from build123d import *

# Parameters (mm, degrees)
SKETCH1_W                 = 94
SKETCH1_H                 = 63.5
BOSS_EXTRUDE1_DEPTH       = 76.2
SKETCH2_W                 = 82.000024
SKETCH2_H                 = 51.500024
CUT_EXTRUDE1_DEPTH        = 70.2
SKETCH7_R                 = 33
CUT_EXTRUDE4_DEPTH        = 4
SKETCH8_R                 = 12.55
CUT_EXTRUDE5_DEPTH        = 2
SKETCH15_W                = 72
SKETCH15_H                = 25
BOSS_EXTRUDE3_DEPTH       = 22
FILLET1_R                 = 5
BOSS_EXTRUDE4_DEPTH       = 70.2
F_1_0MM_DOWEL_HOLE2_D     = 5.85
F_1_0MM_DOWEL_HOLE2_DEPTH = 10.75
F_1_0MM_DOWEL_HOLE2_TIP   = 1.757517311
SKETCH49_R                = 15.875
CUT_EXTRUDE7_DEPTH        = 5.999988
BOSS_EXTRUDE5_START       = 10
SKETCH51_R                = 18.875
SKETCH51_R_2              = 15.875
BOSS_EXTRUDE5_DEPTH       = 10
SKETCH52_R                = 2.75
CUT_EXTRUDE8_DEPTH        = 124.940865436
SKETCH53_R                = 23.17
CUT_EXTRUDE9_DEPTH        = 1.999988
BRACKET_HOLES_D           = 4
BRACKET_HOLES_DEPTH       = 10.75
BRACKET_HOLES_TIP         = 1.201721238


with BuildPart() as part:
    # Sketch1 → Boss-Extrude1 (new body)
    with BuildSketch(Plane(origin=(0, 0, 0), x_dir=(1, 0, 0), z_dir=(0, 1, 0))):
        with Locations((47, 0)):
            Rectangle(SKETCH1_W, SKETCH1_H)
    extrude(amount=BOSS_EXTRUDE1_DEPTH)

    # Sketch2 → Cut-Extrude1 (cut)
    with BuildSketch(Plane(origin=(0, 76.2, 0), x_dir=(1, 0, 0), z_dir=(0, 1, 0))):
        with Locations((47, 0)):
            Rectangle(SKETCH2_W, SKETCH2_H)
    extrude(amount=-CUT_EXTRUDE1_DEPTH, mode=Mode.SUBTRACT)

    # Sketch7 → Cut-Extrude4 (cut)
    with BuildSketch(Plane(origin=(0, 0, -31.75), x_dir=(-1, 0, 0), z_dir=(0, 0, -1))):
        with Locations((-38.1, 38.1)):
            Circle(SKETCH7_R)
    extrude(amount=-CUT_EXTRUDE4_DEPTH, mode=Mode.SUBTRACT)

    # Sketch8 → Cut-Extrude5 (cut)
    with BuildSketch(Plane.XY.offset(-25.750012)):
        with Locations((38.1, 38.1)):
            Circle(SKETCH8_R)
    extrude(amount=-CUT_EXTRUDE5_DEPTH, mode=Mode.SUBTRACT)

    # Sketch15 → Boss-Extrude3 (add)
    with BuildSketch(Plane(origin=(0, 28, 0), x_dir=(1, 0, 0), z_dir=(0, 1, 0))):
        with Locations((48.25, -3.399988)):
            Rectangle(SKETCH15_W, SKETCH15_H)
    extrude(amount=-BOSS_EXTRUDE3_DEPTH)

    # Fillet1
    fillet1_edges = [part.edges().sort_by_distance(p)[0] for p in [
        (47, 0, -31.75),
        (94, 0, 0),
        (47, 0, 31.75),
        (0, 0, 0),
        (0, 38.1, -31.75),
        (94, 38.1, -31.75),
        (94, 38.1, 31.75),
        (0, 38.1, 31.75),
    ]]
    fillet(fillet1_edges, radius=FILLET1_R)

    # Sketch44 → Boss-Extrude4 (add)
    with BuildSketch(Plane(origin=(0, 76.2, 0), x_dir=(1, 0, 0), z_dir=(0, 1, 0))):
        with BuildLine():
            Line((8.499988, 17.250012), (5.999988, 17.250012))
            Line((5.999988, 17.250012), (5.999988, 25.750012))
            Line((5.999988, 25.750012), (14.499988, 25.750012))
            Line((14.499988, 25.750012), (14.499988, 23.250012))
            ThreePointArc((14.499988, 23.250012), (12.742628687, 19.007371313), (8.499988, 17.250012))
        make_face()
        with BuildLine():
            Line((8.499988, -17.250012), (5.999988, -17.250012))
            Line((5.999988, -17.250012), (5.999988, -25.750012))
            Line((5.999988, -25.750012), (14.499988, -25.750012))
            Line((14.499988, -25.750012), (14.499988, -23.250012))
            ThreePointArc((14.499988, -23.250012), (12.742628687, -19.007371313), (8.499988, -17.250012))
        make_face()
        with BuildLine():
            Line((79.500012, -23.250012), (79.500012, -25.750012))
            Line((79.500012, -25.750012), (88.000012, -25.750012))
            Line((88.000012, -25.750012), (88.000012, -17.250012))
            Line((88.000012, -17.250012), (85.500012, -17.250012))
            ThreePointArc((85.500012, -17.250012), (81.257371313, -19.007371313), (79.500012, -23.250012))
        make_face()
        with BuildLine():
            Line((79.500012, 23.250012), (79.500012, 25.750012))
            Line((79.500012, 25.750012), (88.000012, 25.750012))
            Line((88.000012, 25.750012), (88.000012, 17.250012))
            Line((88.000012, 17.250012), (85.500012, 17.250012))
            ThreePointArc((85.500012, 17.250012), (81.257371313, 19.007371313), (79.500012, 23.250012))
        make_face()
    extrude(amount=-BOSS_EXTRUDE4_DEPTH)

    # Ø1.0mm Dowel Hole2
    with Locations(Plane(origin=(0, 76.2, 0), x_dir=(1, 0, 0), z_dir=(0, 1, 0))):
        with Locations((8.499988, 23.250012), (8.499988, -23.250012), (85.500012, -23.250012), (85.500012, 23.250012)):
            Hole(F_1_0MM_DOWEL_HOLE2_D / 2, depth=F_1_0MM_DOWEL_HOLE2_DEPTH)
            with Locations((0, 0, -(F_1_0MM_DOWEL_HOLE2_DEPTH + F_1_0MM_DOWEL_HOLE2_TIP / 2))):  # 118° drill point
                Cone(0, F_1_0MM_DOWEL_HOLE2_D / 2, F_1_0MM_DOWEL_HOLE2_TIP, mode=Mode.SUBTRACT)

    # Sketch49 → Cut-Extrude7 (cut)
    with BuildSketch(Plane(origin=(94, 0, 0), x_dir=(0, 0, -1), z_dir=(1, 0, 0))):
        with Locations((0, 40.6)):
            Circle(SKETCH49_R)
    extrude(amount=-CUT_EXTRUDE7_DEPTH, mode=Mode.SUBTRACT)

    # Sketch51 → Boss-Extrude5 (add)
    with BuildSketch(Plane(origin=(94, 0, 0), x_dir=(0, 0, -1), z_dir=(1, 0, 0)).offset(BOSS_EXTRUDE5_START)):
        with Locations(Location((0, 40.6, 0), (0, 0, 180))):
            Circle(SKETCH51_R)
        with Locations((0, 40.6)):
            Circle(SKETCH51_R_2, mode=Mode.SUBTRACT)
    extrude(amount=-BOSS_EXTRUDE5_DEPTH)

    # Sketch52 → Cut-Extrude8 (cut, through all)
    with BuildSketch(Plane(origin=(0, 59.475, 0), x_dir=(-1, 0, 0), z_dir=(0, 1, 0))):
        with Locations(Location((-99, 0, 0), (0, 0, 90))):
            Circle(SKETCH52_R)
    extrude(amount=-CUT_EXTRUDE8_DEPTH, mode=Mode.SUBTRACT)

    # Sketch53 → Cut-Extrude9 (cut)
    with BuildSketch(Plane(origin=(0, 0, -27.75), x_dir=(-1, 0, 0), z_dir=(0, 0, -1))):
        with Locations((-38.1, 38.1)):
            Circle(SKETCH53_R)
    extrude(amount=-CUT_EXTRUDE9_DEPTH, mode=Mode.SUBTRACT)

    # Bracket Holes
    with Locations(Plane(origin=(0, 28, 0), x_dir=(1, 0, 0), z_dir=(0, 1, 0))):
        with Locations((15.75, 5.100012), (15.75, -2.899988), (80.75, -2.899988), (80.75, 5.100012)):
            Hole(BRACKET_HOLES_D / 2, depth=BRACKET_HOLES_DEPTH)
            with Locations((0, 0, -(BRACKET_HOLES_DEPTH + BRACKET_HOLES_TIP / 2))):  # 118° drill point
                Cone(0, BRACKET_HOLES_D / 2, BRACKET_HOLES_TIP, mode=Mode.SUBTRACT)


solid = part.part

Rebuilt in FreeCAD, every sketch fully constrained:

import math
import FreeCAD as App
import Part
import Sketcher
from FreeCAD import Vector


def edges_at(feature, points):
    """Names of the edges that pass closest to the given points."""
    edges = feature.Shape.Edges
    near = lambda p: min(range(len(edges)), key=lambda i: edges[i].distToShape(Part.Vertex(*p))[0])
    return sorted({f"Edge{near(p) + 1}" for p in points})


def add_polygon(sketch, points):
    """Adds a closed chain of lines whose ends are joined by coincident constraints."""
    first, n = sketch.GeometryCount, len(points)
    for a, b in zip(points, points[1:] + points[:1]):
        sketch.addGeometry(Part.LineSegment(App.Vector(*a, 0), App.Vector(*b, 0)), False)
    for i in range(n):
        sketch.addConstraint(Sketcher.Constraint("Coincident", first + i, 2, first + (i + 1) % n, 1))

doc = App.newDocument("Part")
body = doc.addObject("PartDesign::Body", "Body")

# Sketch on XZ plane
sketch1 = doc.addObject("Sketcher::SketchObject", "Sketch")
body.addObject(sketch1)
sketch1.AttachmentSupport = (doc.XZ_Plane, [""])
sketch1.MapMode = "FlatFace"
add_polygon(sketch1, [(0, -31.75), (0, 31.75), (94, 31.75), (94, -31.75)])  # lines 0-3
sketch1.addConstraint(Sketcher.Constraint("Vertical", 0))
sketch1.addConstraint(Sketcher.Constraint("Horizontal", 1))
sketch1.addConstraint(Sketcher.Constraint("Vertical", 2))
sketch1.addConstraint(Sketcher.Constraint("Horizontal", 3))
sketch1.addConstraint(Sketcher.Constraint("Symmetric", 0, 2, 3, 2, -1, 1))
sketch1.addConstraint(Sketcher.Constraint("DistanceX", 1, 1, 1, 2, 94.0))
sketch1.addConstraint(Sketcher.Constraint("DistanceY", 0, 1, 0, 2, 63.5))
pad1 = doc.addObject("PartDesign::Pad", "Pad")
body.addObject(pad1)
pad1.Profile = sketch1
pad1.Length = 76.2
pad1.Reversed = True

# Sketch on XZ plane
sketch2 = doc.addObject("Sketcher::SketchObject", "Sketch001")
body.addObject(sketch2)
sketch2.AttachmentSupport = (doc.XZ_Plane, [""])
sketch2.MapMode = "FlatFace"
sketch2.AttachmentOffset = App.Placement(Vector(0, 0, -76.2), App.Rotation())
add_polygon(sketch2, [(5.999988, -25.750012), (5.999988, 25.750012), (88.000012, 25.750012), (88.000012, -25.750012)])  # lines 0-3
sketch2.addConstraint(Sketcher.Constraint("Vertical", 0))
sketch2.addConstraint(Sketcher.Constraint("Horizontal", 1))
sketch2.addConstraint(Sketcher.Constraint("Vertical", 2))
sketch2.addConstraint(Sketcher.Constraint("Horizontal", 3))
sketch2.addConstraint(Sketcher.Constraint("DistanceX", 1, 1, 1, 2, 82.000024))
sketch2.addConstraint(Sketcher.Constraint("DistanceY", 0, 1, 0, 2, 51.500024))
sketch2.addConstraint(Sketcher.Constraint("DistanceX", -1, 1, 1, 2, 88.000012))
sketch2.addConstraint(Sketcher.Constraint("DistanceY", -1, 1, 0, 2, 25.750012))
pocket1 = doc.addObject("PartDesign::Pocket", "Pocket")
body.addObject(pocket1)
pocket1.Profile = sketch2
pocket1.Length = 70.2
pocket1.Reversed = True

# Sketch on XY plane
sketch3 = doc.addObject("Sketcher::SketchObject", "Sketch002")
body.addObject(sketch3)
sketch3.AttachmentSupport = (doc.XY_Plane, [""])
sketch3.MapMode = "FlatFace"
sketch3.AttachmentOffset = App.Placement(Vector(0, 0, -31.75), App.Rotation())
sketch3.addGeometry(Part.Circle(Vector(38.1, 38.1, 0), Vector(0, 0, 1), 33), False)
sketch3.addConstraint(Sketcher.Constraint("Diameter", 0, 66.0))
sketch3.addConstraint(Sketcher.Constraint("DistanceX", -1, 1, 0, 3, 38.1))
sketch3.addConstraint(Sketcher.Constraint("DistanceY", -1, 1, 0, 3, 38.1))
pocket2 = doc.addObject("PartDesign::Pocket", "Pocket001")
body.addObject(pocket2)
pocket2.Profile = sketch3
pocket2.Length = 4
pocket2.Reversed = True

# Sketch on XY plane
sketch4 = doc.addObject("Sketcher::SketchObject", "Sketch003")
body.addObject(sketch4)
sketch4.AttachmentSupport = (doc.XY_Plane, [""])
sketch4.MapMode = "FlatFace"
sketch4.AttachmentOffset = App.Placement(Vector(0, 0, -25.750012), App.Rotation())
sketch4.addGeometry(Part.Circle(Vector(38.1, 38.1, 0), Vector(0, 0, 1), 12.55), False)
sketch4.addConstraint(Sketcher.Constraint("Diameter", 0, 25.1))
sketch4.addConstraint(Sketcher.Constraint("DistanceX", -1, 1, 0, 3, 38.1))
sketch4.addConstraint(Sketcher.Constraint("DistanceY", -1, 1, 0, 3, 38.1))
pocket3 = doc.addObject("PartDesign::Pocket", "Pocket002")
body.addObject(pocket3)
pocket3.Profile = sketch4
pocket3.Length = 2

# Sketch on XZ plane
sketch5 = doc.addObject("Sketcher::SketchObject", "Sketch004")
body.addObject(sketch5)
sketch5.AttachmentSupport = (doc.XZ_Plane, [""])
sketch5.MapMode = "FlatFace"
sketch5.AttachmentOffset = App.Placement(Vector(0, 0, -28), App.Rotation())
add_polygon(sketch5, [(12.25, -9.100012), (12.25, 15.899988), (84.25, 15.899988), (84.25, -9.100012)])  # lines 0-3
sketch5.addConstraint(Sketcher.Constraint("Vertical", 0))
sketch5.addConstraint(Sketcher.Constraint("Horizontal", 1))
sketch5.addConstraint(Sketcher.Constraint("Vertical", 2))
sketch5.addConstraint(Sketcher.Constraint("Horizontal", 3))
sketch5.addConstraint(Sketcher.Constraint("DistanceX", 1, 1, 1, 2, 72.0))
sketch5.addConstraint(Sketcher.Constraint("DistanceY", 0, 1, 0, 2, 25.0))
sketch5.addConstraint(Sketcher.Constraint("DistanceX", -1, 1, 0, 2, 12.25))
sketch5.addConstraint(Sketcher.Constraint("DistanceY", -1, 1, 0, 2, 15.899988))
pad2 = doc.addObject("PartDesign::Pad", "Pad001")
body.addObject(pad2)
pad2.Profile = sketch5
pad2.Length = 22
doc.recompute()

fillet = doc.addObject("PartDesign::Fillet", "Fillet")
body.addObject(fillet)
fillet.Base = (pad2, edges_at(pad2, [
    (47, 0, -31.75),
    (94, 0, 0),
    (47, 0, 31.75),
    (0, 0, 0),
    (0, 38.1, -31.75),
    (94, 38.1, -31.75),
    (94, 38.1, 31.75),
    (0, 38.1, 31.75),
]))
fillet.Radius = 5

# Sketch on XZ plane
sketch6 = doc.addObject("Sketcher::SketchObject", "Sketch005")
body.addObject(sketch6)
sketch6.AttachmentSupport = (doc.XZ_Plane, [""])
sketch6.MapMode = "FlatFace"
sketch6.AttachmentOffset = App.Placement(Vector(0, 0, -76.2), App.Rotation())
sketch6.addGeometry(Part.LineSegment(Vector(5.999988, -17.250012, 0), Vector(8.499988, -17.250012, 0)), False)
sketch6.addGeometry(Part.ArcOfCircle(Part.Circle(Vector(8.499988, -23.250012, 0), Vector(0, 0, 1), 6), math.radians(0), math.radians(90)), False)
sketch6.addGeometry(Part.LineSegment(Vector(14.499988, -23.250012, 0), Vector(14.499988, -25.750012, 0)), False)
sketch6.addGeometry(Part.LineSegment(Vector(14.499988, -25.750012, 0), Vector(5.999988, -25.750012, 0)), False)
sketch6.addGeometry(Part.LineSegment(Vector(5.999988, -25.750012, 0), Vector(5.999988, -17.250012, 0)), False)
sketch6.addGeometry(Part.LineSegment(Vector(8.499988, 17.250012, 0), Vector(5.999988, 17.250012, 0)), False)
sketch6.addGeometry(Part.LineSegment(Vector(5.999988, 17.250012, 0), Vector(5.999988, 25.750012, 0)), False)
sketch6.addGeometry(Part.LineSegment(Vector(5.999988, 25.750012, 0), Vector(14.499988, 25.750012, 0)), False)
sketch6.addGeometry(Part.LineSegment(Vector(14.499988, 25.750012, 0), Vector(14.499988, 23.250012, 0)), False)
sketch6.addGeometry(Part.ArcOfCircle(Part.Circle(Vector(8.499988, 23.250012, 0), Vector(0, 0, 1), 6), math.radians(-90), math.radians(0)), False)
sketch6.addGeometry(Part.LineSegment(Vector(79.500012, 23.250012, 0), Vector(79.500012, 25.750012, 0)), False)
sketch6.addGeometry(Part.LineSegment(Vector(79.500012, 25.750012, 0), Vector(88.000012, 25.750012, 0)), False)
sketch6.addGeometry(Part.LineSegment(Vector(88.000012, 25.750012, 0), Vector(88.000012, 17.250012, 0)), False)
sketch6.addGeometry(Part.LineSegment(Vector(88.000012, 17.250012, 0), Vector(85.500012, 17.250012, 0)), False)
sketch6.addGeometry(Part.ArcOfCircle(Part.Circle(Vector(85.500012, 23.250012, 0), Vector(0, 0, 1), 6), math.radians(180), math.radians(270)), False)
sketch6.addGeometry(Part.LineSegment(Vector(79.500012, -25.750012, 0), Vector(79.500012, -23.250012, 0)), False)
sketch6.addGeometry(Part.ArcOfCircle(Part.Circle(Vector(85.500012, -23.250012, 0), Vector(0, 0, 1), 6), math.radians(90), math.radians(180)), False)
sketch6.addGeometry(Part.LineSegment(Vector(85.500012, -17.250012, 0), Vector(88.000012, -17.250012, 0)), False)
sketch6.addGeometry(Part.LineSegment(Vector(88.000012, -17.250012, 0), Vector(88.000012, -25.750012, 0)), False)
sketch6.addGeometry(Part.LineSegment(Vector(88.000012, -25.750012, 0), Vector(79.500012, -25.750012, 0)), False)
sketch6.addConstraint(Sketcher.Constraint("Tangent", 0, 2, 1, 2))
sketch6.addConstraint(Sketcher.Constraint("Tangent", 1, 1, 2, 1))
sketch6.addConstraint(Sketcher.Constraint("Coincident", 2, 2, 3, 1))
sketch6.addConstraint(Sketcher.Constraint("Coincident", 3, 2, 4, 1))
sketch6.addConstraint(Sketcher.Constraint("Coincident", 4, 2, 0, 1))
sketch6.addConstraint(Sketcher.Constraint("Coincident", 5, 2, 6, 1))
sketch6.addConstraint(Sketcher.Constraint("Coincident", 6, 2, 7, 1))
sketch6.addConstraint(Sketcher.Constraint("Coincident", 7, 2, 8, 1))
sketch6.addConstraint(Sketcher.Constraint("Tangent", 8, 2, 9, 2))
sketch6.addConstraint(Sketcher.Constraint("Tangent", 9, 1, 5, 1))
sketch6.addConstraint(Sketcher.Constraint("Coincident", 10, 2, 11, 1))
sketch6.addConstraint(Sketcher.Constraint("Coincident", 11, 2, 12, 1))
sketch6.addConstraint(Sketcher.Constraint("Coincident", 12, 2, 13, 1))
sketch6.addConstraint(Sketcher.Constraint("Tangent", 13, 2, 14, 2))
sketch6.addConstraint(Sketcher.Constraint("Tangent", 14, 1, 10, 1))
sketch6.addConstraint(Sketcher.Constraint("Tangent", 15, 2, 16, 2))
sketch6.addConstraint(Sketcher.Constraint("Tangent", 16, 1, 17, 1))
sketch6.addConstraint(Sketcher.Constraint("Coincident", 17, 2, 18, 1))
sketch6.addConstraint(Sketcher.Constraint("Coincident", 18, 2, 19, 1))
sketch6.addConstraint(Sketcher.Constraint("Coincident", 19, 2, 15, 1))
sketch6.addConstraint(Sketcher.Constraint("Horizontal", 0))
sketch6.addConstraint(Sketcher.Constraint("Vertical", 2))
sketch6.addConstraint(Sketcher.Constraint("Horizontal", 3))
sketch6.addConstraint(Sketcher.Constraint("Vertical", 4))
sketch6.addConstraint(Sketcher.Constraint("Horizontal", 5))
sketch6.addConstraint(Sketcher.Constraint("Vertical", 6))
sketch6.addConstraint(Sketcher.Constraint("Horizontal", 7))
sketch6.addConstraint(Sketcher.Constraint("Vertical", 8))
sketch6.addConstraint(Sketcher.Constraint("Vertical", 10))
sketch6.addConstraint(Sketcher.Constraint("Horizontal", 11))
sketch6.addConstraint(Sketcher.Constraint("Vertical", 12))
sketch6.addConstraint(Sketcher.Constraint("Horizontal", 13))
sketch6.addConstraint(Sketcher.Constraint("Vertical", 15))
sketch6.addConstraint(Sketcher.Constraint("Horizontal", 17))
sketch6.addConstraint(Sketcher.Constraint("Vertical", 18))
sketch6.addConstraint(Sketcher.Constraint("Horizontal", 19))
sketch6.addConstraint(Sketcher.Constraint("Equal", 1, 9))
sketch6.addConstraint(Sketcher.Constraint("Equal", 9, 14))
sketch6.addConstraint(Sketcher.Constraint("Equal", 14, 16))
sketch6.addConstraint(Sketcher.Constraint("Symmetric", 1, 3, 9, 3, -1))
sketch6.addConstraint(Sketcher.Constraint("Symmetric", 14, 3, 16, 3, -1))
sketch6.addConstraint(Sketcher.Constraint("Symmetric", 3, 2, 6, 2, -1))
sketch6.addConstraint(Sketcher.Constraint("Symmetric", 11, 2, 18, 2, -1))
sketch6.addConstraint(Sketcher.Constraint("Horizontal", 9, 3, 14, 3))
sketch6.addConstraint(Sketcher.Constraint("Horizontal", 7, 2, 10, 2))
sketch6.addConstraint(Sketcher.Constraint("Equal", 7, 11))
sketch6.addConstraint(Sketcher.Constraint("Equal", 17, 2))
sketch6.addConstraint(Sketcher.Constraint("Radius", 1, 6.0))
sketch6.addConstraint(Sketcher.Constraint("DistanceX", 0, 1, 0, 2, 2.5))
sketch6.addConstraint(Sketcher.Constraint("DistanceX", -1, 1, 14, 3, 85.500012))
sketch6.addConstraint(Sketcher.Constraint("DistanceX", -1, 1, 1, 3, 8.499988))
sketch6.addConstraint(Sketcher.Constraint("DistanceY", 1, 3, -1, 1, 23.250012))
pad3 = doc.addObject("PartDesign::Pad", "Pad002")
body.addObject(pad3)
pad3.Profile = sketch6
pad3.Length = 70.2

# Sketch on XZ plane
sketch7 = doc.addObject("Sketcher::SketchObject", "Sketch006")
body.addObject(sketch7)
sketch7.AttachmentSupport = (doc.XZ_Plane, [""])
sketch7.MapMode = "FlatFace"
sketch7.AttachmentOffset = App.Placement(Vector(0, 0, -76.2), App.Rotation())
sketch7.addGeometry(Part.Circle(Vector(8.499988, -23.250012, 0), Vector(0, 0, 1), 2.925), False)
sketch7.addGeometry(Part.Circle(Vector(8.499988, 23.250012, 0), Vector(0, 0, 1), 2.925), False)
sketch7.addGeometry(Part.Circle(Vector(85.500012, 23.250012, 0), Vector(0, 0, 1), 2.925), False)
sketch7.addGeometry(Part.Circle(Vector(85.500012, -23.250012, 0), Vector(0, 0, 1), 2.925), False)
sketch7.addConstraint(Sketcher.Constraint("Equal", 0, 1))
sketch7.addConstraint(Sketcher.Constraint("Equal", 1, 2))
sketch7.addConstraint(Sketcher.Constraint("Equal", 2, 3))
sketch7.addConstraint(Sketcher.Constraint("Symmetric", 0, 3, 1, 3, -1))
sketch7.addConstraint(Sketcher.Constraint("Symmetric", 2, 3, 3, 3, -1))
sketch7.addConstraint(Sketcher.Constraint("Horizontal", 1, 3, 2, 3))
sketch7.addConstraint(Sketcher.Constraint("Diameter", 0, 5.85))
sketch7.addConstraint(Sketcher.Constraint("DistanceX", -1, 1, 2, 3, 85.500012))
sketch7.addConstraint(Sketcher.Constraint("DistanceX", -1, 1, 0, 3, 8.499988))
sketch7.addConstraint(Sketcher.Constraint("DistanceY", 0, 3, -1, 1, 23.250012))
doc.recompute()
hole = doc.addObject("PartDesign::Hole", "Hole")
body.addObject(hole)
hole.Profile = sketch7
hole.ThreadType = "None"
hole.Diameter = 5.85
hole.DepthType = "Dimension"
hole.Depth = 10.75
hole.DrillPoint = "Angled"
hole.DrillPointAngle = 118
hole.Reversed = True

# Sketch on YZ plane
sketch8 = doc.addObject("Sketcher::SketchObject", "Sketch007")
body.addObject(sketch8)
sketch8.AttachmentSupport = (doc.YZ_Plane, [""])
sketch8.MapMode = "FlatFace"
sketch8.AttachmentOffset = App.Placement(Vector(0, 0, 94), App.Rotation())
sketch8.addGeometry(Part.Circle(Vector(40.6, 0, 0), Vector(0, 0, 1), 15.875), False)
sketch8.addConstraint(Sketcher.Constraint("PointOnObject", 0, 3, -1))
sketch8.addConstraint(Sketcher.Constraint("Diameter", 0, 31.75))
sketch8.addConstraint(Sketcher.Constraint("DistanceX", -1, 1, 0, 3, 40.6))
pocket4 = doc.addObject("PartDesign::Pocket", "Pocket003")
body.addObject(pocket4)
pocket4.Profile = sketch8
pocket4.Length = 5.999988

# Sketch on YZ plane
sketch9 = doc.addObject("Sketcher::SketchObject", "Sketch008")
body.addObject(sketch9)
sketch9.AttachmentSupport = (doc.YZ_Plane, [""])
sketch9.MapMode = "FlatFace"
sketch9.AttachmentOffset = App.Placement(Vector(0, 0, 104), App.Rotation())
sketch9.addGeometry(Part.Circle(Vector(40.6, 0, 0), Vector(0, 0, 1), 18.875), False)
sketch9.addGeometry(Part.Circle(Vector(40.6, 0, 0), Vector(0, 0, 1), 15.875), False)
sketch9.addConstraint(Sketcher.Constraint("Coincident", 1, 3, 0, 3))
sketch9.addConstraint(Sketcher.Constraint("PointOnObject", 0, 3, -1))
sketch9.addConstraint(Sketcher.Constraint("Diameter", 0, 37.75))
sketch9.addConstraint(Sketcher.Constraint("Diameter", 1, 31.75))
sketch9.addConstraint(Sketcher.Constraint("DistanceX", -1, 1, 0, 3, 40.6))
pad4 = doc.addObject("PartDesign::Pad", "Pad003")
body.addObject(pad4)
pad4.Profile = sketch9
pad4.Length = 10
pad4.Reversed = True

# Sketch on XZ plane
sketch10 = doc.addObject("Sketcher::SketchObject", "Sketch009")
body.addObject(sketch10)
sketch10.AttachmentSupport = (doc.XZ_Plane, [""])
sketch10.MapMode = "FlatFace"
sketch10.AttachmentOffset = App.Placement(Vector(0, 0, -59.475), App.Rotation())
sketch10.addGeometry(Part.Circle(Vector(99, 0, 0), Vector(0, 0, 1), 2.75), False)
sketch10.addConstraint(Sketcher.Constraint("PointOnObject", 0, 3, -1))
sketch10.addConstraint(Sketcher.Constraint("Diameter", 0, 5.5))
sketch10.addConstraint(Sketcher.Constraint("DistanceX", -1, 1, 0, 3, 99.0))
pocket5 = doc.addObject("PartDesign::Pocket", "Pocket004")
body.addObject(pocket5)
pocket5.Profile = sketch10
pocket5.Type = "ThroughAll"
pocket5.Reversed = True

# Sketch on XY plane
sketch11 = doc.addObject("Sketcher::SketchObject", "Sketch010")
body.addObject(sketch11)
sketch11.AttachmentSupport = (doc.XY_Plane, [""])
sketch11.MapMode = "FlatFace"
sketch11.AttachmentOffset = App.Placement(Vector(0, 0, -27.75), App.Rotation())
sketch11.addGeometry(Part.Circle(Vector(38.1, 38.1, 0), Vector(0, 0, 1), 23.17), False)
sketch11.addConstraint(Sketcher.Constraint("Diameter", 0, 46.34))
sketch11.addConstraint(Sketcher.Constraint("DistanceX", -1, 1, 0, 3, 38.1))
sketch11.addConstraint(Sketcher.Constraint("DistanceY", -1, 1, 0, 3, 38.1))
pocket6 = doc.addObject("PartDesign::Pocket", "Pocket005")
body.addObject(pocket6)
pocket6.Profile = sketch11
pocket6.Length = 1.999988
pocket6.Reversed = True

# Sketch on XZ plane
sketch12 = doc.addObject("Sketcher::SketchObject", "Sketch011")
body.addObject(sketch12)
sketch12.AttachmentSupport = (doc.XZ_Plane, [""])
sketch12.MapMode = "FlatFace"
sketch12.AttachmentOffset = App.Placement(Vector(0, 0, -28), App.Rotation())
sketch12.addGeometry(Part.Circle(Vector(15.75, -5.100012, 0), Vector(0, 0, 1), 2), False)
sketch12.addGeometry(Part.Circle(Vector(15.75, 2.899988, 0), Vector(0, 0, 1), 2), False)
sketch12.addGeometry(Part.Circle(Vector(80.75, 2.899988, 0), Vector(0, 0, 1), 2), False)
sketch12.addGeometry(Part.Circle(Vector(80.75, -5.100012, 0), Vector(0, 0, 1), 2), False)
sketch12.addConstraint(Sketcher.Constraint("Equal", 0, 1))
sketch12.addConstraint(Sketcher.Constraint("Equal", 1, 2))
sketch12.addConstraint(Sketcher.Constraint("Equal", 2, 3))
sketch12.addConstraint(Sketcher.Constraint("Horizontal", 1, 3, 2, 3))
sketch12.addConstraint(Sketcher.Constraint("Horizontal", 0, 3, 3, 3))
sketch12.addConstraint(Sketcher.Constraint("Vertical", 0, 3, 1, 3))
sketch12.addConstraint(Sketcher.Constraint("Vertical", 2, 3, 3, 3))
sketch12.addConstraint(Sketcher.Constraint("Diameter", 0, 4.0))
sketch12.addConstraint(Sketcher.Constraint("DistanceY", 0, 3, 1, 3, 8.0))
sketch12.addConstraint(Sketcher.Constraint("DistanceX", 1, 3, 2, 3, 65.0))
sketch12.addConstraint(Sketcher.Constraint("DistanceX", -1, 1, 0, 3, 15.75))
sketch12.addConstraint(Sketcher.Constraint("DistanceY", -1, 1, 1, 3, 2.899988))
doc.recompute()
hole2 = doc.addObject("PartDesign::Hole", "Hole001")
body.addObject(hole2)
hole2.Profile = sketch12
hole2.ThreadType = "None"
hole2.Diameter = 4
hole2.DepthType = "Dimension"
hole2.Depth = 10.75
hole2.DrillPoint = "Angled"
hole2.DrillPointAngle = 118
hole2.Reversed = True

doc.recompute()
